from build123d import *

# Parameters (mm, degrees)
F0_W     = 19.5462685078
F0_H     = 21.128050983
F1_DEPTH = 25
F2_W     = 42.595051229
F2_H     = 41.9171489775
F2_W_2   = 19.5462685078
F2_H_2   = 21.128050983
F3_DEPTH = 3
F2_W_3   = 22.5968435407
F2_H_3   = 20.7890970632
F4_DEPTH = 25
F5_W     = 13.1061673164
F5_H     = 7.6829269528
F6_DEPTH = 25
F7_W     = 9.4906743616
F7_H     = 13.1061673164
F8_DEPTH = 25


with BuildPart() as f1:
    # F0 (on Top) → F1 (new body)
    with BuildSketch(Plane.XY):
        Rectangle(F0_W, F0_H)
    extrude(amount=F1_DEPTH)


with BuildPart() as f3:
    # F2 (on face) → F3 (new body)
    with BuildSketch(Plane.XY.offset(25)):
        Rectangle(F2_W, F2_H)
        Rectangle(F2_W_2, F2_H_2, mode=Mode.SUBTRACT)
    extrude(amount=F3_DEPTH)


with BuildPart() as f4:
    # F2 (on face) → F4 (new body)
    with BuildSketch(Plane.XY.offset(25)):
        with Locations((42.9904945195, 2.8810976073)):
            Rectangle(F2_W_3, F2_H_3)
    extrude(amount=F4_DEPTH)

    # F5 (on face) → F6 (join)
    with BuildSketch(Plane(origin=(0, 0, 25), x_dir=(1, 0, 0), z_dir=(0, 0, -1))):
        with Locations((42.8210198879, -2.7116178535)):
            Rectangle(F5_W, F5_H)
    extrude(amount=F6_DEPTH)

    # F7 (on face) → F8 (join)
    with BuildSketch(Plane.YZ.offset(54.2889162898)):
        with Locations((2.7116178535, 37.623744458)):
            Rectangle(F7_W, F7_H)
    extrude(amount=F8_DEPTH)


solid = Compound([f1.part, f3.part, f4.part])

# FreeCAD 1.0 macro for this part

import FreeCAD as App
import Part
import Sketcher

V = App.Vector
Q = App.Units.Quantity

doc = App.newDocument("Part")
body = doc.addObject("PartDesign::Body", "Body")

sketch1 = body.newObject("Sketcher::SketchObject", "Sketch")
sketch1.AttachmentSupport = (doc.getObject("XY_Plane"), [""])
sketch1.MapMode = "FlatFace"
sketch1.addGeometry(Part.LineSegment(V(-9.773134, 10.564025, 0), V(-9.773134, -10.564025, 0)), False)
sketch1.addGeometry(Part.LineSegment(V(-9.773134, -10.564025, 0), V(9.773134, -10.564025, 0)), False)
sketch1.addGeometry(Part.LineSegment(V(9.773134, -10.564025, 0), V(9.773134, 10.564025, 0)), False)
sketch1.addGeometry(Part.LineSegment(V(9.773134, 10.564025, 0), V(-9.773134, 10.564025, 0)), False)
sketch1.addConstraint(Sketcher.Constraint("Coincident", 0, 2, 1, 1))
sketch1.addConstraint(Sketcher.Constraint("Coincident", 1, 2, 2, 1))
sketch1.addConstraint(Sketcher.Constraint("Coincident", 2, 2, 3, 1))
sketch1.addConstraint(Sketcher.Constraint("Coincident", 3, 2, 0, 1))
sketch1.addConstraint(Sketcher.Constraint("Vertical", 0))
sketch1.addConstraint(Sketcher.Constraint("Horizontal", 1))
sketch1.addConstraint(Sketcher.Constraint("Vertical", 2))
sketch1.addConstraint(Sketcher.Constraint("Horizontal", 3))
sketch1.addConstraint(Sketcher.Constraint("Symmetric", 0, 2, 2, 2, -1, 1))
sketch1.addConstraint(Sketcher.Constraint("DistanceX", 1, 1, 1, 2, Q("19.546269 mm")))
sketch1.addConstraint(Sketcher.Constraint("DistanceY", 0, 2, 0, 1, Q("21.128051 mm")))
pad1 = body.newObject("PartDesign::Pad", "Pad")
pad1.Profile = sketch1
pad1.Length = 25
body2 = doc.addObject("PartDesign::Body", "Body001")

sketch2 = body2.newObject("Sketcher::SketchObject", "Sketch001")
sketch2.AttachmentSupport = (doc.getObject("XY_Plane001"), [""])
sketch2.MapMode = "FlatFace"
sketch2.AttachmentOffset = App.Placement(V(0, 0, 25), App.Rotation())
sketch2.addGeometry(Part.LineSegment(V(-21.297526, 20.958574, 0), V(-21.297526, -20.958574, 0)), False)
sketch2.addGeometry(Part.LineSegment(V(-21.297526, -20.958574, 0), V(21.297526, -20.958574, 0)), False)
sketch2.addGeometry(Part.LineSegment(V(21.297526, -20.958574, 0), V(21.297526, 20.958574, 0)), False)
sketch2.addGeometry(Part.LineSegment(V(21.297526, 20.958574, 0), V(-21.297526, 20.958574, 0)), False)
sketch2.addGeometry(Part.LineSegment(V(9.773134, -10.564025, 0), V(-9.773134, -10.564025, 0)), False)
sketch2.addGeometry(Part.LineSegment(V(-9.773134, -10.564025, 0), V(-9.773134, 10.564025, 0)), False)
sketch2.addGeometry(Part.LineSegment(V(-9.773134, 10.564025, 0), V(9.773134, 10.564025, 0)), False)
sketch2.addGeometry(Part.LineSegment(V(9.773134, 10.564025, 0), V(9.773134, -10.564025, 0)), False)
sketch2.addConstraint(Sketcher.Constraint("Coincident", 0, 2, 1, 1))
sketch2.addConstraint(Sketcher.Constraint("Coincident", 1, 2, 2, 1))
sketch2.addConstraint(Sketcher.Constraint("Coincident", 2, 2, 3, 1))
sketch2.addConstraint(Sketcher.Constraint("Coincident", 3, 2, 0, 1))
sketch2.addConstraint(Sketcher.Constraint("Coincident", 4, 2, 5, 1))
sketch2.addConstraint(Sketcher.Constraint("Coincident", 5, 2, 6, 1))
sketch2.addConstraint(Sketcher.Constraint("Coincident", 6, 2, 7, 1))
sketch2.addConstraint(Sketcher.Constraint("Coincident", 7, 2, 4, 1))
sketch2.addConstraint(Sketcher.Constraint("Vertical", 0))
sketch2.addConstraint(Sketcher.Constraint("Horizontal", 1))
sketch2.addConstraint(Sketcher.Constraint("Vertical", 2))
sketch2.addConstraint(Sketcher.Constraint("Horizontal", 3))
sketch2.addConstraint(Sketcher.Constraint("Horizontal", 4))
sketch2.addConstraint(Sketcher.Constraint("Vertical", 5))
sketch2.addConstraint(Sketcher.Constraint("Horizontal", 6))
sketch2.addConstraint(Sketcher.Constraint("Vertical", 7))
sketch2.addConstraint(Sketcher.Constraint("Symmetric", 0, 2, 2, 2, -1, 1))
sketch2.addConstraint(Sketcher.Constraint("Symmetric", 4, 2, 6, 2, -1, 1))
sketch2.addConstraint(Sketcher.Constraint("DistanceX", 1, 1, 1, 2, Q("42.595051 mm")))
sketch2.addConstraint(Sketcher.Constraint("DistanceX", 4, 2, 4, 1, Q("19.546269 mm")))
sketch2.addConstraint(Sketcher.Constraint("DistanceY", 0, 2, 0, 1, Q("41.917149 mm")))
sketch2.addConstraint(Sketcher.Constraint("DistanceY", 5, 1, 5, 2, Q("21.128051 mm")))
pad2 = body2.newObject("PartDesign::Pad", "Pad001")
pad2.Profile = sketch2
pad2.Length = 3
body3 = doc.addObject("PartDesign::Body", "Body002")

sketch3 = body3.newObject("Sketcher::SketchObject", "Sketch002")
sketch3.AttachmentSupport = (doc.getObject("XY_Plane002"), [""])
sketch3.MapMode = "FlatFace"
sketch3.AttachmentOffset = App.Placement(V(0, 0, 25), App.Rotation())
sketch3.addGeometry(Part.LineSegment(V(31.692073, 13.275646, 0), V(31.692073, -7.513451, 0)), False)
sketch3.addGeometry(Part.LineSegment(V(31.692073, -7.513451, 0), V(54.288916, -7.513451, 0)), False)
sketch3.addGeometry(Part.LineSegment(V(54.288916, -7.513451, 0), V(54.288916, 13.275646, 0)), False)
sketch3.addGeometry(Part.LineSegment(V(54.288916, 13.275646, 0), V(31.692073, 13.275646, 0)), False)
sketch3.addConstraint(Sketcher.Constraint("Coincident", 0, 2, 1, 1))
sketch3.addConstraint(Sketcher.Constraint("Coincident", 1, 2, 2, 1))
sketch3.addConstraint(Sketcher.Constraint("Coincident", 2, 2, 3, 1))
sketch3.addConstraint(Sketcher.Constraint("Coincident", 3, 2, 0, 1))
sketch3.addConstraint(Sketcher.Constraint("Vertical", 0))
sketch3.addConstraint(Sketcher.Constraint("Horizontal", 1))
sketch3.addConstraint(Sketcher.Constraint("Vertical", 2))
sketch3.addConstraint(Sketcher.Constraint("Horizontal", 3))
sketch3.addConstraint(Sketcher.Constraint("DistanceX", 1, 1, 1, 2, Q("22.596844 mm")))
sketch3.addConstraint(Sketcher.Constraint("DistanceY", 0, 2, 0, 1, Q("20.789097 mm")))
sketch3.addConstraint(Sketcher.Constraint("DistanceY", 0, 2, -1, 1, Q("7.513451 mm")))
sketch3.addConstraint(Sketcher.Constraint("DistanceX", -1, 1, 0, 2, Q("31.692073 mm")))
pad3 = body3.newObject("PartDesign::Pad", "Pad002")
pad3.Profile = sketch3
pad3.Length = 25

sketch4 = body3.newObject("Sketcher::SketchObject", "Sketch003")
sketch4.AttachmentSupport = (doc.getObject("XY_Plane002"), [""])
sketch4.MapMode = "FlatFace"
sketch4.AttachmentOffset = App.Placement(V(0, 0, 25), App.Rotation())
sketch4.addGeometry(Part.LineSegment(V(36.267936, -1.129846, 0), V(36.267936, 6.553081, 0)), False)
sketch4.addGeometry(Part.LineSegment(V(36.267936, 6.553081, 0), V(49.374104, 6.553081, 0)), False)
sketch4.addGeometry(Part.LineSegment(V(49.374104, 6.553081, 0), V(49.374104, -1.129846, 0)), False)
sketch4.addGeometry(Part.LineSegment(V(49.374104, -1.129846, 0), V(36.267936, -1.129846, 0)), False)
sketch4.addConstraint(Sketcher.Constraint("Coincident", 0, 2, 1, 1))
sketch4.addConstraint(Sketcher.Constraint("Coincident", 1, 2, 2, 1))
sketch4.addConstraint(Sketcher.Constraint("Coincident", 2, 2, 3, 1))
sketch4.addConstraint(Sketcher.Constraint("Coincident", 3, 2, 0, 1))
sketch4.addConstraint(Sketcher.Constraint("Vertical", 0))
sketch4.addConstraint(Sketcher.Constraint("Horizontal", 1))
sketch4.addConstraint(Sketcher.Constraint("Vertical", 2))
sketch4.addConstraint(Sketcher.Constraint("Horizontal", 3))
sketch4.addConstraint(Sketcher.Constraint("DistanceX", 1, 1, 1, 2, Q("13.106167 mm")))
sketch4.addConstraint(Sketcher.Constraint("DistanceY", 0, 1, 0, 2, Q("7.682927 mm")))
sketch4.addConstraint(Sketcher.Constraint("DistanceY", -1, 1, 0, 2, Q("6.553081 mm")))
sketch4.addConstraint(Sketcher.Constraint("DistanceX", -1, 1, 0, 2, Q("36.267936 mm")))
pad4 = body3.newObject("PartDesign::Pad", "Pad003")
pad4.Profile = sketch4
pad4.Length = 25
pad4.Reversed = True

sketch5 = body3.newObject("Sketcher::SketchObject", "Sketch004")
sketch5.AttachmentSupport = (doc.getObject("YZ_Plane002"), [""])
sketch5.MapMode = "FlatFace"
sketch5.AttachmentOffset = App.Placement(V(0, 0, 54.288916), App.Rotation())
sketch5.addGeometry(Part.LineSegment(V(-2.033719, 44.176828, 0), V(-2.033719, 31.070661, 0)), False)
sketch5.addGeometry(Part.LineSegment(V(-2.033719, 31.070661, 0), V(7.456955, 31.070661, 0)), False)
sketch5.addGeometry(Part.LineSegment(V(7.456955, 31.070661, 0), V(7.456955, 44.176828, 0)), False)
sketch5.addGeometry(Part.LineSegment(V(7.456955, 44.176828, 0), V(-2.033719, 44.176828, 0)), False)
sketch5.addConstraint(Sketcher.Constraint("Coincident", 0, 2, 1, 1))
sketch5.addConstraint(Sketcher.Constraint("Coincident", 1, 2, 2, 1))
sketch5.addConstraint(Sketcher.Constraint("Coincident", 2, 2, 3, 1))
sketch5.addConstraint(Sketcher.Constraint("Coincident", 3, 2, 0, 1))
sketch5.addConstraint(Sketcher.Constraint("Vertical", 0))
sketch5.addConstraint(Sketcher.Constraint("Horizontal", 1))
sketch5.addConstraint(Sketcher.Constraint("Vertical", 2))
sketch5.addConstraint(Sketcher.Constraint("Horizontal", 3))
sketch5.addConstraint(Sketcher.Constraint("DistanceX", 1, 1, 1, 2, Q("9.490674 mm")))
sketch5.addConstraint(Sketcher.Constraint("DistanceY", 0, 2, 0, 1, Q("13.106167 mm")))
sketch5.addConstraint(Sketcher.Constraint("DistanceX", 0, 2, -1, 1, Q("2.033719 mm")))
sketch5.addConstraint(Sketcher.Constraint("DistanceY", -1, 1, 0, 2, Q("31.070661 mm")))
pad5 = body3.newObject("PartDesign::Pad", "Pad004")
pad5.Profile = sketch5
pad5.Length = 25

doc.recompute()
